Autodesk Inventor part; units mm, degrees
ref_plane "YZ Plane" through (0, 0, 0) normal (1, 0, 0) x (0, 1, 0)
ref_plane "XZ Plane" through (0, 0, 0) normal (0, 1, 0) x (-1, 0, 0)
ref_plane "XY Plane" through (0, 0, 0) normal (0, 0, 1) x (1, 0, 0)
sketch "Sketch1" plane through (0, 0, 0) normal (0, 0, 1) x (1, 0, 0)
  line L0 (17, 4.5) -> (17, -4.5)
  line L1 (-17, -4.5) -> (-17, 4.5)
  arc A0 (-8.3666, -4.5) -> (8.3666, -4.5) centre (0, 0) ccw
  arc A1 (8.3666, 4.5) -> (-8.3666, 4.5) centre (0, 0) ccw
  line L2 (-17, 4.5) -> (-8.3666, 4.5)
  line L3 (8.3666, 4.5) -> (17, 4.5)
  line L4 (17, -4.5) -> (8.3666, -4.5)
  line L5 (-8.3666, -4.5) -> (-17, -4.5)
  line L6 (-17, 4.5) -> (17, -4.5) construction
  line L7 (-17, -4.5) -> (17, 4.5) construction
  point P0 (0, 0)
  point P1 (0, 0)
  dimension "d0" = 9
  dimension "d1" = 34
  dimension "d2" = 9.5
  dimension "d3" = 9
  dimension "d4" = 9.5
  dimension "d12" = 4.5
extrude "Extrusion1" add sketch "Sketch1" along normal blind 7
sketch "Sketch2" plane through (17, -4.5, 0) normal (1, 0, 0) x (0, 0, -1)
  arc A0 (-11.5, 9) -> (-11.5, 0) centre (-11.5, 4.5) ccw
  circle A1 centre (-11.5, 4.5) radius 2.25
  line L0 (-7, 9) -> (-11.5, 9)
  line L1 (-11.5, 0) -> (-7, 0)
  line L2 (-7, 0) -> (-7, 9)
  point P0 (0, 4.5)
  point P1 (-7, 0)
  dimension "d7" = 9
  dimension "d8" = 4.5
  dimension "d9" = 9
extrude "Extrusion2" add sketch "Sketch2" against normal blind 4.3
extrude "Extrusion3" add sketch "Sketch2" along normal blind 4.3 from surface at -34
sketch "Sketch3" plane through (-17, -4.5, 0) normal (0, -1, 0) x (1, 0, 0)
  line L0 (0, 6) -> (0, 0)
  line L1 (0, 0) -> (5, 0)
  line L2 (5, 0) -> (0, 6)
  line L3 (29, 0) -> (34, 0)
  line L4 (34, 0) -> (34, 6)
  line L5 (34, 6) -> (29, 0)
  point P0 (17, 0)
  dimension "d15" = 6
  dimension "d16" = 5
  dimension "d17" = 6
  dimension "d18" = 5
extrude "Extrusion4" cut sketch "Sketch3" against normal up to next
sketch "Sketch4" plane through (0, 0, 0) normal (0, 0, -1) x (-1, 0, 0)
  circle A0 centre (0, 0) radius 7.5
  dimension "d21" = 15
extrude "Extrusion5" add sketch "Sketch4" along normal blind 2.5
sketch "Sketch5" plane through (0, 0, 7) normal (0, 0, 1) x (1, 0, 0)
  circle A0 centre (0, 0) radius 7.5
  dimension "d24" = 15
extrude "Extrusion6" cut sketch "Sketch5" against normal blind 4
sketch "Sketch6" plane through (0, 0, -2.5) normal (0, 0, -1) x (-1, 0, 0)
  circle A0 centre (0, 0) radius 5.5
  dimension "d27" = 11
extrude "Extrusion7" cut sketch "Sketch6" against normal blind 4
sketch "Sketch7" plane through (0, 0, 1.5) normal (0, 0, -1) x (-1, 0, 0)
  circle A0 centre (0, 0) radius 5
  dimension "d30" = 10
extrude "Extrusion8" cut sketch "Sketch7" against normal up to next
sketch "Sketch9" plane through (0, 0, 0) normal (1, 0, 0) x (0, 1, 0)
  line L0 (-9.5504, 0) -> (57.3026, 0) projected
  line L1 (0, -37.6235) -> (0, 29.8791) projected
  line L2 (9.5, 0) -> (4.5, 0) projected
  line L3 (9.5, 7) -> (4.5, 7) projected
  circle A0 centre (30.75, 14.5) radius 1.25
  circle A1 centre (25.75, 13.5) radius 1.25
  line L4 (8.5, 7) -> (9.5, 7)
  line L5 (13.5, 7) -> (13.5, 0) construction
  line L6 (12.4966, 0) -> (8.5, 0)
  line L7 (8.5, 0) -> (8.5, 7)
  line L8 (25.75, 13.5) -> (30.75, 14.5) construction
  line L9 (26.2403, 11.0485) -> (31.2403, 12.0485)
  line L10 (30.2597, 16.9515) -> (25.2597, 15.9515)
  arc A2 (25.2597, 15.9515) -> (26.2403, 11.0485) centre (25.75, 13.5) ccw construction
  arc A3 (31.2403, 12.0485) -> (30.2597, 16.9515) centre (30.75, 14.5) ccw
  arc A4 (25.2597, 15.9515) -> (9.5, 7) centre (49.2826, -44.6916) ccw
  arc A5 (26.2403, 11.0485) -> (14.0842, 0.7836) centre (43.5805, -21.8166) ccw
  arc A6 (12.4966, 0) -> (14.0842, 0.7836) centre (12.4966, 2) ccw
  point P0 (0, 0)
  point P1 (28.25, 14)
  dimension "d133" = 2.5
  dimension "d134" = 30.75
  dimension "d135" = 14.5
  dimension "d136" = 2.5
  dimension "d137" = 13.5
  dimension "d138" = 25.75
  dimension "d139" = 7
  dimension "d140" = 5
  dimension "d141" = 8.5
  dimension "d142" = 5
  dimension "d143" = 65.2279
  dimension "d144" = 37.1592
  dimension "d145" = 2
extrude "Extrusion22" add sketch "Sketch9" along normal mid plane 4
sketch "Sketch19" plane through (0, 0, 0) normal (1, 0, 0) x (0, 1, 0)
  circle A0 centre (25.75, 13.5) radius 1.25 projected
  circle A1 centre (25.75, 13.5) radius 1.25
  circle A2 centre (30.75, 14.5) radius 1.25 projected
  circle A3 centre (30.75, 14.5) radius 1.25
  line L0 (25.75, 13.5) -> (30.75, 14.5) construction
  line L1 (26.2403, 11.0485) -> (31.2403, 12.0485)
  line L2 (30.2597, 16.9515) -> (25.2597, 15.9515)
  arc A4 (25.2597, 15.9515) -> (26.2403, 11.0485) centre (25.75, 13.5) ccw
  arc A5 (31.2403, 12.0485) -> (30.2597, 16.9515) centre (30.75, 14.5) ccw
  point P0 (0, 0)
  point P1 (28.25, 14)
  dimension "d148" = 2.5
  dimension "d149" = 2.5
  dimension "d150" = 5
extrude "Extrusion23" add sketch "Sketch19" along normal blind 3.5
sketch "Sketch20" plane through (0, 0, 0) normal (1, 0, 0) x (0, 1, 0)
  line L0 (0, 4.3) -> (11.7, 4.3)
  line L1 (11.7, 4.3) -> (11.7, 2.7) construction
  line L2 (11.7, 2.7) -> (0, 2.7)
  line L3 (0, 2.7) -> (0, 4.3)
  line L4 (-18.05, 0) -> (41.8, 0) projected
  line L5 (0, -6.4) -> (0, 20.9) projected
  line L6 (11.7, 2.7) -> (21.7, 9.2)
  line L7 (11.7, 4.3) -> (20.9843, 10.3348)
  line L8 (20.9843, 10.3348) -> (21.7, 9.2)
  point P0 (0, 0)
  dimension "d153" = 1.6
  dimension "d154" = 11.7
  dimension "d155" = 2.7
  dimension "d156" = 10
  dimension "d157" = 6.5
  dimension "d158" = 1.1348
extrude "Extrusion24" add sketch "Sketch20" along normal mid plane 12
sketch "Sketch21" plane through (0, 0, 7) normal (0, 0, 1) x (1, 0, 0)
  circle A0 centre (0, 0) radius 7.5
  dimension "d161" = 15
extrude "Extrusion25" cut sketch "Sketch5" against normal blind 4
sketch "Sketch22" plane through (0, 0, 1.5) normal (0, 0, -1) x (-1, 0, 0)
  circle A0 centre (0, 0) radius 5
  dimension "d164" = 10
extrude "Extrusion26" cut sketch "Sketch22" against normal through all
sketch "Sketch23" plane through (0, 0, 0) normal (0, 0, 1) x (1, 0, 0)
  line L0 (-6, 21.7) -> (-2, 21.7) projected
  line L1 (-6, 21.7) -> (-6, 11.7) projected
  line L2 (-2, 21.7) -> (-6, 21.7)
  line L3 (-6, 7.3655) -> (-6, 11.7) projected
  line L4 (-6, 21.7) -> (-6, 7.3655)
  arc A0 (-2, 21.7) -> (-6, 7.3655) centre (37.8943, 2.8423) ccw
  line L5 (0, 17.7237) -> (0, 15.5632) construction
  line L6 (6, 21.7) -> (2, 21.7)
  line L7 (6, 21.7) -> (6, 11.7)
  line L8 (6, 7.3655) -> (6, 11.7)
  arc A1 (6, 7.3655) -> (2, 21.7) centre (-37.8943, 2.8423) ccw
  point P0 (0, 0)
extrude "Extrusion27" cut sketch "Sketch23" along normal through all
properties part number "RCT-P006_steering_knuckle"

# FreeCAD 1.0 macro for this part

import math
import FreeCAD as App
import Part
import Sketcher
Q = App.Units.Quantity

doc = App.newDocument("Part")
body = doc.addObject("PartDesign::Body", "Body")

# Sketch on XY plane
sketch1 = doc.addObject("Sketcher::SketchObject", "Sketch")
body.addObject(sketch1)
sketch1.AttachmentSupport = (doc.XY_Plane, [""])
sketch1.MapMode = "FlatFace"
sketch1.addGeometry([
    Part.LineSegment(App.Vector(17, -4, 0), App.Vector(17, 4, 0)),  # 0
    Part.LineSegment(App.Vector(17, 4, 0), App.Vector(8, 4, 0)),  # 1
    Part.ArcOfCircle(Part.Circle(App.Vector(0, 0, 0), App.Vector(0, 0, 1), 9), math.radians(28), math.radians(152)),  # 2
    Part.LineSegment(App.Vector(-8, 4, 0), App.Vector(-17, 4, 0)),  # 3
    Part.LineSegment(App.Vector(-17, 4, 0), App.Vector(-17, -4, 0)),  # 4
    Part.LineSegment(App.Vector(-17, -4, 0), App.Vector(-8, -4, 0)),  # 5
    Part.ArcOfCircle(Part.Circle(App.Vector(0, 0, 0), App.Vector(0, 0, 1), 9), math.radians(-152), math.radians(-28)),  # 6
    Part.LineSegment(App.Vector(8, -4, 0), App.Vector(17, -4, 0)),  # 7
], False)
sketch1.addConstraint([
    Sketcher.Constraint("Coincident", 0, 2, 1, 1),
    Sketcher.Constraint("Coincident", 1, 2, 2, 1),
    Sketcher.Constraint("Coincident", 2, 2, 3, 1),
    Sketcher.Constraint("Coincident", 3, 2, 4, 1),
    Sketcher.Constraint("Coincident", 4, 2, 5, 1),
    Sketcher.Constraint("Coincident", 5, 2, 6, 1),
    Sketcher.Constraint("Coincident", 6, 2, 7, 1),
    Sketcher.Constraint("Coincident", 7, 2, 0, 1),
    Sketcher.Constraint("Vertical", 0),
    Sketcher.Constraint("Horizontal", 1),
    Sketcher.Constraint("Horizontal", 3),
    Sketcher.Constraint("Vertical", 4),
    Sketcher.Constraint("Horizontal", 5),
    Sketcher.Constraint("Horizontal", 7),
    Sketcher.Constraint("Coincident", 2, 3, -1, 1),
    Sketcher.Constraint("Coincident", 6, 3, -1, 1),
    Sketcher.Constraint("Equal", 2, 6),
    Sketcher.Constraint("Symmetric", 0, 2, 4, 2, -1, 1),
    Sketcher.Constraint("Horizontal", 1, 2, 2, 2),
    Sketcher.Constraint("Horizontal", 5, 2, 6, 2),
    Sketcher.Constraint("Radius", 2, Q("9.5 mm")),
    Sketcher.Constraint("DistanceY", 0, 1, 0, 2, Q("9 mm")),
    Sketcher.Constraint("DistanceX", 3, 2, 0, 2, Q("34 mm")),
])
pad1 = doc.addObject("PartDesign::Pad", "Pad")
body.addObject(pad1)
pad1.Profile = sketch1
pad1.Length = 7

# Sketch on YZ plane
sketch2 = doc.addObject("Sketcher::SketchObject", "Sketch001")
body.addObject(sketch2)
sketch2.AttachmentSupport = (doc.YZ_Plane, [""])
sketch2.MapMode = "FlatFace"
sketch2.AttachmentOffset = App.Placement(App.Vector(0, 0, 17), App.Rotation())
sketch2.addGeometry([
    Part.LineSegment(App.Vector(4.5, 7, 0), App.Vector(4.5, 11.5, 0)),  # 0
    Part.ArcOfCircle(Part.Circle(App.Vector(0, 11.5, 0), App.Vector(0, 0, 1), 4.5), math.radians(0), math.radians(180)),  # 1
    Part.LineSegment(App.Vector(-4.5, 11.5, 0), App.Vector(-4.5, 7, 0)),  # 2
    Part.LineSegment(App.Vector(-4.5, 7, 0), App.Vector(4.5, 7, 0)),  # 3
    Part.Circle(App.Vector(0, 11.5, 0), App.Vector(0, 0, 1), 2.2),  # 4
], False)
sketch2.addConstraint([
    Sketcher.Constraint("Tangent", 0, 2, 1, 1),
    Sketcher.Constraint("Tangent", 1, 2, 2, 1),
    Sketcher.Constraint("Coincident", 2, 2, 3, 1),
    Sketcher.Constraint("Coincident", 3, 2, 0, 1),
    Sketcher.Constraint("Vertical", 0),
    Sketcher.Constraint("Vertical", 2),
    Sketcher.Constraint("Horizontal", 3),
    Sketcher.Constraint("Coincident", 4, 3, 1, 3),
    Sketcher.Constraint("PointOnObject", 1, 3, -2),
    Sketcher.Constraint("Diameter", 4, Q("4.5 mm")),
    Sketcher.Constraint("Radius", 1, Q("4.5 mm")),
    Sketcher.Constraint("DistanceY", 0, 1, 0, 2, Q("4.5 mm")),
    Sketcher.Constraint("DistanceY", -1, 1, 2, 2, Q("7 mm")),
])
pad2 = doc.addObject("PartDesign::Pad", "Pad001")
body.addObject(pad2)
pad2.Profile = sketch2
pad2.Length = 4.3
pad2.Reversed = True

# Sketch on YZ plane
sketch3 = doc.addObject("Sketcher::SketchObject", "Sketch002")
body.addObject(sketch3)
sketch3.AttachmentSupport = (doc.YZ_Plane, [""])
sketch3.MapMode = "FlatFace"
sketch3.AttachmentOffset = App.Placement(App.Vector(0, 0, -17), App.Rotation())
sketch3.addGeometry([
    Part.LineSegment(App.Vector(4.5, 7, 0), App.Vector(4.5, 11.5, 0)),  # 0
    Part.ArcOfCircle(Part.Circle(App.Vector(0, 11.5, 0), App.Vector(0, 0, 1), 4.5), math.radians(0), math.radians(180)),  # 1
    Part.LineSegment(App.Vector(-4.5, 11.5, 0), App.Vector(-4.5, 7, 0)),  # 2
    Part.LineSegment(App.Vector(-4.5, 7, 0), App.Vector(4.5, 7, 0)),  # 3
    Part.Circle(App.Vector(0, 11.5, 0), App.Vector(0, 0, 1), 2.2),  # 4
], False)
sketch3.addConstraint([
    Sketcher.Constraint("Tangent", 0, 2, 1, 1),
    Sketcher.Constraint("Tangent", 1, 2, 2, 1),
    Sketcher.Constraint("Coincident", 2, 2, 3, 1),
    Sketcher.Constraint("Coincident", 3, 2, 0, 1),
    Sketcher.Constraint("Vertical", 0),
    Sketcher.Constraint("Vertical", 2),
    Sketcher.Constraint("Horizontal", 3),
    Sketcher.Constraint("Coincident", 4, 3, 1, 3),
    Sketcher.Constraint("PointOnObject", 1, 3, -2),
    Sketcher.Constraint("Diameter", 4, Q("4.5 mm")),
    Sketcher.Constraint("Radius", 1, Q("4.5 mm")),
    Sketcher.Constraint("DistanceY", 0, 1, 0, 2, Q("4.5 mm")),
    Sketcher.Constraint("DistanceY", -1, 1, 2, 2, Q("7 mm")),
])
pad3 = doc.addObject("PartDesign::Pad", "Pad002")
body.addObject(pad3)
pad3.Profile = sketch3
pad3.Length = 4.3

# Sketch on XZ plane
sketch4 = doc.addObject("Sketcher::SketchObject", "Sketch003")
body.addObject(sketch4)
sketch4.AttachmentSupport = (doc.XZ_Plane, [""])
sketch4.MapMode = "FlatFace"
sketch4.AttachmentOffset = App.Placement(App.Vector(0, 0, 4.5), App.Rotation())
sketch4.addGeometry([
    Part.LineSegment(App.Vector(-12, 0, 0), App.Vector(-17, 6, 0)),  # 0
    Part.LineSegment(App.Vector(-17, 6, 0), App.Vector(-17, 0, 0)),  # 1
    Part.LineSegment(App.Vector(-17, 0, 0), App.Vector(-12, 0, 0)),  # 2
    Part.LineSegment(App.Vector(17, 6, 0), App.Vector(12, 0, 0)),  # 3
    Part.LineSegment(App.Vector(12, 0, 0), App.Vector(17, 0, 0)),  # 4
    Part.LineSegment(App.Vector(17, 0, 0), App.Vector(17, 6, 0)),  # 5
], False)
sketch4.addConstraint([
    Sketcher.Constraint("Coincident", 0, 2, 1, 1),
    Sketcher.Constraint("Coincident", 1, 2, 2, 1),
    Sketcher.Constraint("Coincident", 2, 2, 0, 1),
    Sketcher.Constraint("Coincident", 3, 2, 4, 1),
    Sketcher.Constraint("Coincident", 4, 2, 5, 1),
    Sketcher.Constraint("Coincident", 5, 2, 3, 1),
    Sketcher.Constraint("Vertical", 1),
    Sketcher.Constraint("Horizontal", 2),
    Sketcher.Constraint("Horizontal", 4),
    Sketcher.Constraint("Vertical", 5),
    Sketcher.Constraint("Symmetric", 2, 2, 3, 2, -1, 1),
    Sketcher.Constraint("Symmetric", 1, 2, 4, 2, -2),
    Sketcher.Constraint("Horizontal", 0, 2, 5, 2),
    Sketcher.Constraint("DistanceX", 2, 1, 2, 2, Q("5 mm")),
    Sketcher.Constraint("DistanceY", 1, 2, 1, 1, Q("6 mm")),
    Sketcher.Constraint("DistanceX", 0, 2, -1, 1, Q("17 mm")),
])
pocket1 = doc.addObject("PartDesign::Pocket", "Pocket")
body.addObject(pocket1)
pocket1.Profile = sketch4
pocket1.Length = 9

# Sketch on XY plane
sketch5 = doc.addObject("Sketcher::SketchObject", "Sketch004")
body.addObject(sketch5)
sketch5.AttachmentSupport = (doc.XY_Plane, [""])
sketch5.MapMode = "FlatFace"
sketch5.addGeometry(Part.Circle(App.Vector(0, 0, 0), App.Vector(0, 0, 1), 8), False)
sketch5.addConstraint([
    Sketcher.Constraint("Coincident", 0, 3, -1, 1),
    Sketcher.Constraint("Diameter", 0, Q("15 mm")),
])
pad4 = doc.addObject("PartDesign::Pad", "Pad003")
body.addObject(pad4)
pad4.Profile = sketch5
pad4.Length = 2.5
pad4.Reversed = True

# Sketch on XY plane
sketch6 = doc.addObject("Sketcher::SketchObject", "Sketch005")
body.addObject(sketch6)
sketch6.AttachmentSupport = (doc.XY_Plane, [""])
sketch6.MapMode = "FlatFace"
sketch6.AttachmentOffset = App.Placement(App.Vector(0, 0, 7), App.Rotation())
sketch6.addGeometry(Part.Circle(App.Vector(0, 0, 0), App.Vector(0, 0, 1), 8), False)
sketch6.addConstraint([
    Sketcher.Constraint("Coincident", 0, 3, -1, 1),
    Sketcher.Constraint("Diameter", 0, Q("15 mm")),
])
pocket2 = doc.addObject("PartDesign::Pocket", "Pocket001")
body.addObject(pocket2)
pocket2.Profile = sketch6
pocket2.Length = 4

# Sketch on XY plane
sketch7 = doc.addObject("Sketcher::SketchObject", "Sketch006")
body.addObject(sketch7)
sketch7.AttachmentSupport = (doc.XY_Plane, [""])
sketch7.MapMode = "FlatFace"
sketch7.AttachmentOffset = App.Placement(App.Vector(0, 0, -2.5), App.Rotation())
sketch7.addGeometry(Part.Circle(App.Vector(0, 0, 0), App.Vector(0, 0, 1), 6), False)
sketch7.addConstraint([
    Sketcher.Constraint("Coincident", 0, 3, -1, 1),
    Sketcher.Constraint("Diameter", 0, Q("11 mm")),
])
pocket3 = doc.addObject("PartDesign::Pocket", "Pocket002")
body.addObject(pocket3)
pocket3.Profile = sketch7
pocket3.Length = 4
pocket3.Reversed = True

# Sketch on XY plane
sketch8 = doc.addObject("Sketcher::SketchObject", "Sketch007")
body.addObject(sketch8)
sketch8.AttachmentSupport = (doc.XY_Plane, [""])
sketch8.MapMode = "FlatFace"
sketch8.AttachmentOffset = App.Placement(App.Vector(0, 0, 1.5), App.Rotation())
sketch8.addGeometry(Part.Circle(App.Vector(0, 0, 0), App.Vector(0, 0, 1), 5), False)
sketch8.addConstraint([
    Sketcher.Constraint("Coincident", 0, 3, -1, 1),
    Sketcher.Constraint("Diameter", 0, Q("10 mm")),
])
pocket4 = doc.addObject("PartDesign::Pocket", "Pocket003")
body.addObject(pocket4)
pocket4.Profile = sketch8
pocket4.Type = "UpToFirst"
pocket4.Reversed = True

# Sketch on YZ plane
sketch9 = doc.addObject("Sketcher::SketchObject", "Sketch008")
body.addObject(sketch9)
sketch9.AttachmentSupport = (doc.YZ_Plane, [""])
sketch9.MapMode = "FlatFace"
sketch9.addGeometry([
    Part.LineSegment(App.Vector(8.5, 7, 0), App.Vector(8.5, 0, 0)),  # 0
    Part.LineSegment(App.Vector(8.5, 0, 0), App.Vector(12.5, 0, 0)),  # 1
    Part.ArcOfCircle(Part.Circle(App.Vector(12.5, 2, 0), App.Vector(0, 0, 1), 2), math.radians(-90), math.radians(-37)),  # 2
    Part.ArcOfCircle(Part.Circle(App.Vector(43.6, -21.8, 0), App.Vector(0, 0, 1), 37.2), math.radians(118), math.radians(143)),  # 3
    Part.LineSegment(App.Vector(26.2, 11, 0), App.Vector(31.2, 12, 0)),  # 4
    Part.ArcOfCircle(Part.Circle(App.Vector(30.8, 14.5, 0), App.Vector(0, 0, 1), 2.5), math.radians(-79), math.radians(101)),  # 5
    Part.LineSegment(App.Vector(30.3, 17, 0), App.Vector(25.3, 16, 0)),  # 6
    Part.ArcOfCircle(Part.Circle(App.Vector(49.3, -44.7, 0), App.Vector(0, 0, 1), 65.2), math.radians(111.61), math.radians(127.58)),  # 7
    Part.LineSegment(App.Vector(9.5, 7, 0), App.Vector(8.5, 7, 0)),  # 8
    Part.Circle(App.Vector(25.8, 13.5, 0), App.Vector(0, 0, 1), 1.2),  # 9
    Part.Circle(App.Vector(30.8, 14.5, 0), App.Vector(0, 0, 1), 1.2),  # 10
], False)
sketch9.addConstraint([
    Sketcher.Constraint("Coincident", 0, 2, 1, 1),
    Sketcher.Constraint("Tangent", 1, 2, 2, 1),
    Sketcher.Constraint("Tangent", 2, 2, 3, 2),
    Sketcher.Constraint("Coincident", 3, 1, 4, 1),
    Sketcher.Constraint("Tangent", 4, 2, 5, 1),
    Sketcher.Constraint("Tangent", 5, 2, 6, 1),
    Sketcher.Constraint("Coincident", 6, 2, 7, 1),
    Sketcher.Constraint("Coincident", 7, 2, 8, 1),
    Sketcher.Constraint("Coincident", 8, 2, 0, 1),
    Sketcher.Constraint("Vertical", 0),
    Sketcher.Constraint("Horizontal", 1),
    Sketcher.Constraint("Horizontal", 8),
    Sketcher.Constraint("Coincident", 10, 3, 5, 3),
    Sketcher.Constraint("Equal", 9, 10),
    Sketcher.Constraint("PointOnObject", 0, 2, -1),
    Sketcher.Constraint("Parallel", 4, 6),
    Sketcher.Constraint("Equal", 4, 6),
    Sketcher.Constraint("Radius", 2, Q("2 mm")),
    Sketcher.Constraint("Diameter", 9, Q("2.5 mm")),
    Sketcher.Constraint("Radius", 5, Q("2.5 mm")),
    Sketcher.Constraint("DistanceY", 0, 2, 0, 1, Q("7 mm")),
    Sketcher.Constraint("Radius", 3, Q("37.159 mm")),
    Sketcher.Constraint("DistanceX", 9, 3, 5, 3, Q("5 mm")),
    Sketcher.Constraint("DistanceX", 3, 1, 4, 2, Q("5 mm")),
    Sketcher.Constraint("DistanceY", -1, 1, 5, 3, Q("14.5 mm")),
    Sketcher.Constraint("DistanceY", -1, 1, 9, 3, Q("13.5 mm")),
    Sketcher.Constraint("DistanceX", -1, 1, 0, 2, Q("8.5 mm")),
    Sketcher.Constraint("DistanceX", 8, 2, 8, 1, Q("1 mm")),
    Sketcher.Constraint("DistanceX", -1, 1, 5, 3, Q("30.75 mm")),
    Sketcher.Constraint("DistanceY", 3, 1, 4, 2, Q("1 mm")),
    Sketcher.Constraint("Radius", 7, Q("65.2246 mm")),
    Sketcher.Constraint("DistanceX", 1, 1, 1, 2, Q("3.9966 mm")),
])
pad5 = doc.addObject("PartDesign::Pad", "Pad004")
body.addObject(pad5)
pad5.Profile = sketch9
pad5.Length = 4
pad5.Midplane = True

# Sketch on YZ plane
sketch10 = doc.addObject("Sketcher::SketchObject", "Sketch009")
body.addObject(sketch10)
sketch10.AttachmentSupport = (doc.YZ_Plane, [""])
sketch10.MapMode = "FlatFace"
sketch10.addGeometry([
    Part.ArcOfCircle(Part.Circle(App.Vector(25.8, 13.5, 0), App.Vector(0, 0, 1), 2.5), math.radians(101), math.radians(281)),  # 0
    Part.LineSegment(App.Vector(26.2, 11, 0), App.Vector(31.2, 12, 0)),  # 1
    Part.ArcOfCircle(Part.Circle(App.Vector(30.8, 14.5, 0), App.Vector(0, 0, 1), 2.5), math.radians(-79), math.radians(101)),  # 2
    Part.LineSegment(App.Vector(30.3, 17, 0), App.Vector(25.3, 16, 0)),  # 3
    Part.Circle(App.Vector(25.8, 13.5, 0), App.Vector(0, 0, 1), 1.2),  # 4
    Part.Circle(App.Vector(30.8, 14.5, 0), App.Vector(0, 0, 1), 1.2),  # 5
], False)
sketch10.addConstraint([
    Sketcher.Constraint("Tangent", 0, 2, 1, 1),
    Sketcher.Constraint("Tangent", 1, 2, 2, 1),
    Sketcher.Constraint("Tangent", 2, 2, 3, 1),
    Sketcher.Constraint("Tangent", 3, 2, 0, 1),
    Sketcher.Constraint("Coincident", 4, 3, 0, 3),
    Sketcher.Constraint("Coincident", 5, 3, 2, 3),
    Sketcher.Constraint("Equal", 0, 2),
    Sketcher.Constraint("Equal", 4, 5),
    Sketcher.Constraint("Diameter", 4, Q("2.5 mm")),
    Sketcher.Constraint("Radius", 0, Q("2.5 mm")),
    Sketcher.Constraint("DistanceX", 0, 3, 2, 3, Q("5 mm")),
    Sketcher.Constraint("DistanceY", 0, 3, 2, 3, Q("1 mm")),
    Sketcher.Constraint("DistanceY", -1, 1, 0, 3, Q("13.5 mm")),
    Sketcher.Constraint("DistanceX", -1, 1, 0, 3, Q("25.75 mm")),
])
pad6 = doc.addObject("PartDesign::Pad", "Pad005")
body.addObject(pad6)
pad6.Profile = sketch10
pad6.Length = 3.5

# Sketch on YZ plane
sketch11 = doc.addObject("Sketcher::SketchObject", "Sketch010")
body.addObject(sketch11)
sketch11.AttachmentSupport = (doc.YZ_Plane, [""])
sketch11.MapMode = "FlatFace"
sketch11.addGeometry([
    Part.LineSegment(App.Vector(11.7, 4.3, 0), App.Vector(0, 4.3, 0)),  # 0
    Part.LineSegment(App.Vector(0, 4.3, 0), App.Vector(0, 2.7, 0)),  # 1
    Part.LineSegment(App.Vector(0, 2.7, 0), App.Vector(11.7, 2.7, 0)),  # 2
    Part.LineSegment(App.Vector(11.7, 2.7, 0), App.Vector(21.7, 9.2, 0)),  # 3
    Part.LineSegment(App.Vector(21.7, 9.2, 0), App.Vector(21, 10.3, 0)),  # 4
    Part.LineSegment(App.Vector(21, 10.3, 0), App.Vector(11.7, 4.3, 0)),  # 5
], False)
sketch11.addConstraint([
    Sketcher.Constraint("Coincident", 0, 2, 1, 1),
    Sketcher.Constraint("Coincident", 1, 2, 2, 1),
    Sketcher.Constraint("Coincident", 2, 2, 3, 1),
    Sketcher.Constraint("Coincident", 3, 2, 4, 1),
    Sketcher.Constraint("Coincident", 4, 2, 5, 1),
    Sketcher.Constraint("Coincident", 5, 2, 0, 1),
    Sketcher.Constraint("Horizontal", 0),
    Sketcher.Constraint("Vertical", 1),
    Sketcher.Constraint("Horizontal", 2),
    Sketcher.Constraint("PointOnObject", 0, 2, -2),
    Sketcher.Constraint("Parallel", 3, 5),
    Sketcher.Constraint("Vertical", 2, 2, 5, 2),
    Sketcher.Constraint("DistanceX", 0, 2, 0, 1, Q("11.7 mm")),
    Sketcher.Constraint("DistanceY", 1, 2, 1, 1, Q("1.6 mm")),
    Sketcher.Constraint("DistanceX", 2, 2, 3, 2, Q("10 mm")),
    Sketcher.Constraint("DistanceY", -1, 1, 1, 2, Q("2.7 mm")),
    Sketcher.Constraint("DistanceY", 2, 2, 3, 2, Q("6.5 mm")),
    Sketcher.Constraint("Angle", 4, Q("122.239 deg")),
])
pad7 = doc.addObject("PartDesign::Pad", "Pad006")
body.addObject(pad7)
pad7.Profile = sketch11
pad7.Length = 12
pad7.Midplane = True

# Sketch on XY plane
sketch12 = doc.addObject("Sketcher::SketchObject", "Sketch011")
body.addObject(sketch12)
sketch12.AttachmentSupport = (doc.XY_Plane, [""])
sketch12.MapMode = "FlatFace"
sketch12.AttachmentOffset = App.Placement(App.Vector(0, 0, 7), App.Rotation())
sketch12.addGeometry(Part.Circle(App.Vector(0, 0, 0), App.Vector(0, 0, 1), 8), False)
sketch12.addConstraint([
    Sketcher.Constraint("Coincident", 0, 3, -1, 1),
    Sketcher.Constraint("Diameter", 0, Q("15 mm")),
])
pocket5 = doc.addObject("PartDesign::Pocket", "Pocket004")
body.addObject(pocket5)
pocket5.Profile = sketch12
pocket5.Length = 4

# Sketch on XY plane
sketch13 = doc.addObject("Sketcher::SketchObject", "Sketch012")
body.addObject(sketch13)
sketch13.AttachmentSupport = (doc.XY_Plane, [""])
sketch13.MapMode = "FlatFace"
sketch13.AttachmentOffset = App.Placement(App.Vector(0, 0, 1.5), App.Rotation())
sketch13.addGeometry(Part.Circle(App.Vector(0, 0, 0), App.Vector(0, 0, 1), 5), False)
sketch13.addConstraint([
    Sketcher.Constraint("Coincident", 0, 3, -1, 1),
    Sketcher.Constraint("Diameter", 0, Q("10 mm")),
])
pocket6 = doc.addObject("PartDesign::Pocket", "Pocket005")
body.addObject(pocket6)
pocket6.Profile = sketch13
pocket6.Type = "ThroughAll"
pocket6.Reversed = True

# Sketch on XY plane
sketch14 = doc.addObject("Sketcher::SketchObject", "Sketch013")
body.addObject(sketch14)
sketch14.AttachmentSupport = (doc.XY_Plane, [""])
sketch14.MapMode = "FlatFace"
sketch14.addGeometry([
    Part.LineSegment(App.Vector(-2, 21.7, 0), App.Vector(-6, 21.7, 0)),  # 0
    Part.LineSegment(App.Vector(-6, 21.7, 0), App.Vector(-6, 7.4, 0)),  # 1
    Part.ArcOfCircle(Part.Circle(App.Vector(37.9, 2.8, 0), App.Vector(0, 0, 1), 44.1), math.radians(154.7), math.radians(174.12)),  # 2
    Part.LineSegment(App.Vector(6, 7.4, 0), App.Vector(6, 21.7, 0)),  # 3
    Part.LineSegment(App.Vector(6, 21.7, 0), App.Vector(2, 21.7, 0)),  # 4
    Part.ArcOfCircle(Part.Circle(App.Vector(-37.9, 2.8, 0), App.Vector(0, 0, 1), 44.1), math.radians(5.88), math.radians(25.3)),  # 5
], False)
sketch14.addConstraint([
    Sketcher.Constraint("Coincident", 0, 2, 1, 1),
    Sketcher.Constraint("Coincident", 1, 2, 2, 2),
    Sketcher.Constraint("Coincident", 2, 1, 0, 1),
    Sketcher.Constraint("Coincident", 3, 2, 4, 1),
    Sketcher.Constraint("Coincident", 4, 2, 5, 2),
    Sketcher.Constraint("Coincident", 5, 1, 3, 1),
    Sketcher.Constraint("Horizontal", 0),
    Sketcher.Constraint("Vertical", 1),
    Sketcher.Constraint("Vertical", 3),
    Sketcher.Constraint("Horizontal", 4),
    Sketcher.Constraint("Equal", 2, 5),
    Sketcher.Constraint("Symmetric", 2, 3, 5, 3, -2),
    Sketcher.Constraint("Symmetric", 0, 2, 3, 2, -2),
    Sketcher.Constraint("DistanceX", 0, 2, 0, 1, Q("4 mm")),
    Sketcher.Constraint("DistanceX", 0, 2, -1, 1, Q("6 mm")),
    Sketcher.Constraint("DistanceY", -1, 1, 0, 2, Q("21.7 mm")),
    Sketcher.Constraint("Radius", 2, Q("44.1267 mm")),
    Sketcher.Constraint("DistanceY", 1, 2, 1, 1, Q("14.3345 mm")),
])
pocket7 = doc.addObject("PartDesign::Pocket", "Pocket006")
body.addObject(pocket7)
pocket7.Profile = sketch14
pocket7.Type = "ThroughAll"
pocket7.Reversed = True

doc.recompute()
